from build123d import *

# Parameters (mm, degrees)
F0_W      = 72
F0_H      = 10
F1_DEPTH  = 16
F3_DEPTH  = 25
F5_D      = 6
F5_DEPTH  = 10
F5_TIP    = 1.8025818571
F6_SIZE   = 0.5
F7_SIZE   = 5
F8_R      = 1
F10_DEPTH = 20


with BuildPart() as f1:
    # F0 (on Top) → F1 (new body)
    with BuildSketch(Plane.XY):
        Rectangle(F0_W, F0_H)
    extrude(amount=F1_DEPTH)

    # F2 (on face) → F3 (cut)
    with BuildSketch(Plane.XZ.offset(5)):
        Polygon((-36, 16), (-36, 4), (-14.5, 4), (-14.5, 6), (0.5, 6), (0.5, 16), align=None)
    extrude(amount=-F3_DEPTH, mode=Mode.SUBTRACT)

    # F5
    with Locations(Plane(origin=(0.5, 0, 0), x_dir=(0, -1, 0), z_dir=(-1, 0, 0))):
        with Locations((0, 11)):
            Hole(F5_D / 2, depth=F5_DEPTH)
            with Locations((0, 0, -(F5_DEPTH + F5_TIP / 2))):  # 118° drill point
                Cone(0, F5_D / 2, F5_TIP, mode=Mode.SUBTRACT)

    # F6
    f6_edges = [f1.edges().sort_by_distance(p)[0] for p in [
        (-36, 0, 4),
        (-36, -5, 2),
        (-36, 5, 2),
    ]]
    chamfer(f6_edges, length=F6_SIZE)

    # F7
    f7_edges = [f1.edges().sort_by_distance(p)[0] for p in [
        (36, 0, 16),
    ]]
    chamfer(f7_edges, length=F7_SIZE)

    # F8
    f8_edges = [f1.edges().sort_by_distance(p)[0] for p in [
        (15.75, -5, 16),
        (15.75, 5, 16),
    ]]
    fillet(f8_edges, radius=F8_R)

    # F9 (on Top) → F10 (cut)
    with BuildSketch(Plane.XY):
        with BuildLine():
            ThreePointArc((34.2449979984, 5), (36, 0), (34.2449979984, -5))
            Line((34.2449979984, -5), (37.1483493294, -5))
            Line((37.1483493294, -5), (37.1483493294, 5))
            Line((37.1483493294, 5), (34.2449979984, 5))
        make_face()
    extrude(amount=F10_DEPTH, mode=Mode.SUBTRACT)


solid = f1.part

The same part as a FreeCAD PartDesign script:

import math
import FreeCAD as App
import Part
import Sketcher
Q = App.Units.Quantity


def edges_at(feature, points):
    """Names of the edges that pass closest to the given points."""
    edges = feature.Shape.Edges
    near = lambda p: min(range(len(edges)), key=lambda i: edges[i].distToShape(Part.Vertex(*p))[0])
    return sorted({f"Edge{near(p) + 1}" for p in points})


def add_polygon(sketch, points):
    """Adds a closed chain of lines whose ends are joined by coincident constraints."""
    first, n = sketch.GeometryCount, len(points)
    for a, b in zip(points, points[1:] + points[:1]):
        sketch.addGeometry(Part.LineSegment(App.Vector(*a, 0), App.Vector(*b, 0)), False)
    for i in range(n):
        sketch.addConstraint(Sketcher.Constraint("Coincident", first + i, 2, first + (i + 1) % n, 1))

doc = App.newDocument("Part")
body = doc.addObject("PartDesign::Body", "Body")

# Sketch on XY plane
sketch1 = body.newObject("Sketcher::SketchObject", "Sketch")
sketch1.AttachmentSupport = (doc.getObject("XY_Plane"), [""])
sketch1.MapMode = "FlatFace"
add_polygon(sketch1, [(-36, 5), (-36, -5), (36, -5), (36, 5)])  # lines 0-3
sketch1.addConstraint(Sketcher.Constraint("Vertical", 0))
sketch1.addConstraint(Sketcher.Constraint("Horizontal", 1))
sketch1.addConstraint(Sketcher.Constraint("Vertical", 2))
sketch1.addConstraint(Sketcher.Constraint("Horizontal", 3))
sketch1.addConstraint(Sketcher.Constraint("Symmetric", 0, 2, 2, 2, -1, 1))
sketch1.addConstraint(Sketcher.Constraint("DistanceX", 1, 1, 1, 2, Q("72 mm")))
sketch1.addConstraint(Sketcher.Constraint("DistanceY", 0, 2, 0, 1, Q("10 mm")))
pad1 = body.newObject("PartDesign::Pad", "Pad")
pad1.Profile = sketch1
pad1.Length = 16

# Sketch on XZ plane
sketch2 = body.newObject("Sketcher::SketchObject", "Sketch001")
sketch2.AttachmentSupport = (doc.getObject("XZ_Plane"), [""])
sketch2.MapMode = "FlatFace"
sketch2.AttachmentOffset = App.Placement(App.Vector(0, 0, 5), App.Rotation())
add_polygon(sketch2, [(-36, 16), (-36, 4), (-14.5, 4), (-14.5, 6), (0.5, 6), (0.5, 16)])  # lines 0-5
sketch2.addConstraint(Sketcher.Constraint("Vertical", 0))
sketch2.addConstraint(Sketcher.Constraint("Horizontal", 1))
sketch2.addConstraint(Sketcher.Constraint("Vertical", 2))
sketch2.addConstraint(Sketcher.Constraint("Horizontal", 3))
sketch2.addConstraint(Sketcher.Constraint("Vertical", 4))
sketch2.addConstraint(Sketcher.Constraint("Horizontal", 5))
sketch2.addConstraint(Sketcher.Constraint("DistanceX", 3, 1, 3, 2, Q("15 mm")))
sketch2.addConstraint(Sketcher.Constraint("DistanceY", 0, 2, 0, 1, Q("12 mm")))
sketch2.addConstraint(Sketcher.Constraint("DistanceY", 2, 1, 2, 2, Q("2 mm")))
sketch2.addConstraint(Sketcher.Constraint("DistanceX", 1, 1, 1, 2, Q("21.5 mm")))
sketch2.addConstraint(Sketcher.Constraint("DistanceX", 0, 2, -1, 1, Q("36 mm")))
sketch2.addConstraint(Sketcher.Constraint("DistanceY", -1, 1, 0, 2, Q("4 mm")))
pocket1 = body.newObject("PartDesign::Pocket", "Pocket")
pocket1.Profile = sketch2
pocket1.Length = 25

# Sketch on YZ plane
sketch3 = body.newObject("Sketcher::SketchObject", "Sketch002")
sketch3.AttachmentSupport = (doc.getObject("YZ_Plane"), [""])
sketch3.MapMode = "FlatFace"
sketch3.AttachmentOffset = App.Placement(App.Vector(0, 0, 0.5), App.Rotation())
sketch3.addGeometry(Part.Circle(App.Vector(0, 11, 0), App.Vector(0, 0, 1), 3), False)
sketch3.addConstraint(Sketcher.Constraint("PointOnObject", 0, 3, -2))
sketch3.addConstraint(Sketcher.Constraint("Diameter", 0, Q("6 mm")))
sketch3.addConstraint(Sketcher.Constraint("DistanceY", -1, 1, 0, 3, Q("11 mm")))
doc.recompute()
hole = body.newObject("PartDesign::Hole", "Hole")
hole.Profile = sketch3
hole.ThreadType = "None"
hole.Diameter = 6
hole.DepthType = "Dimension"
hole.Depth = 10
hole.DrillPoint = "Angled"
hole.DrillPointAngle = 118
hole.Reversed = True
doc.recompute()

chamfer = body.newObject("PartDesign::Chamfer", "Chamfer")
chamfer.Base = (hole, edges_at(hole, [(-36, 0, 4), (-36, -5, 2), (-36, 5, 2)]))
chamfer.Size = 0.5
doc.recompute()

chamfer2 = body.newObject("PartDesign::Chamfer", "Chamfer001")
chamfer2.Base = (chamfer, edges_at(chamfer, [(36, 0, 16)]))
chamfer2.Size = 5
doc.recompute()

fillet = body.newObject("PartDesign::Fillet", "Fillet")
fillet.Base = (chamfer2, edges_at(chamfer2, [(15.75, -5, 16), (15.75, 5, 16)]))
fillet.Radius = 1

# Sketch on XY plane
sketch4 = body.newObject("Sketcher::SketchObject", "Sketch003")
sketch4.AttachmentSupport = (doc.getObject("XY_Plane"), [""])
sketch4.MapMode = "FlatFace"
sketch4.addGeometry(Part.ArcOfCircle(Part.Circle(App.Vector(28, 0, 0), App.Vector(0, 0, 1), 8), math.radians(-39), math.radians(39)), False)
sketch4.addGeometry(Part.LineSegment(App.Vector(34.2, -5, 0), App.Vector(37.1, -5, 0)), False)
sketch4.addGeometry(Part.LineSegment(App.Vector(37.1, -5, 0), App.Vector(37.1, 5, 0)), False)
sketch4.addGeometry(Part.LineSegment(App.Vector(37.1, 5, 0), App.Vector(34.2, 5, 0)), False)
sketch4.addConstraint(Sketcher.Constraint("Coincident", 0, 1, 1, 1))
sketch4.addConstraint(Sketcher.Constraint("Coincident", 1, 2, 2, 1))
sketch4.addConstraint(Sketcher.Constraint("Coincident", 2, 2, 3, 1))
sketch4.addConstraint(Sketcher.Constraint("Coincident", 3, 2, 0, 2))
sketch4.addConstraint(Sketcher.Constraint("Horizontal", 1))
sketch4.addConstraint(Sketcher.Constraint("Vertical", 2))
sketch4.addConstraint(Sketcher.Constraint("Horizontal", 3))
sketch4.addConstraint(Sketcher.Constraint("Symmetric", 0, 1, 3, 2, -1))
sketch4.addConstraint(Sketcher.Constraint("Radius", 0, Q("8 mm")))
sketch4.addConstraint(Sketcher.Constraint("DistanceY", 2, 1, 2, 2, Q("10 mm")))
sketch4.addConstraint(Sketcher.Constraint("DistanceX", -1, 1, 0, 3, Q("28 mm")))
sketch4.addConstraint(Sketcher.Constraint("DistanceX", 1, 1, 1, 2, Q("2.903351 mm")))
pocket2 = body.newObject("PartDesign::Pocket", "Pocket001")
pocket2.Profile = sketch4
pocket2.Length = 20
pocket2.Reversed = True

doc.recompute()
